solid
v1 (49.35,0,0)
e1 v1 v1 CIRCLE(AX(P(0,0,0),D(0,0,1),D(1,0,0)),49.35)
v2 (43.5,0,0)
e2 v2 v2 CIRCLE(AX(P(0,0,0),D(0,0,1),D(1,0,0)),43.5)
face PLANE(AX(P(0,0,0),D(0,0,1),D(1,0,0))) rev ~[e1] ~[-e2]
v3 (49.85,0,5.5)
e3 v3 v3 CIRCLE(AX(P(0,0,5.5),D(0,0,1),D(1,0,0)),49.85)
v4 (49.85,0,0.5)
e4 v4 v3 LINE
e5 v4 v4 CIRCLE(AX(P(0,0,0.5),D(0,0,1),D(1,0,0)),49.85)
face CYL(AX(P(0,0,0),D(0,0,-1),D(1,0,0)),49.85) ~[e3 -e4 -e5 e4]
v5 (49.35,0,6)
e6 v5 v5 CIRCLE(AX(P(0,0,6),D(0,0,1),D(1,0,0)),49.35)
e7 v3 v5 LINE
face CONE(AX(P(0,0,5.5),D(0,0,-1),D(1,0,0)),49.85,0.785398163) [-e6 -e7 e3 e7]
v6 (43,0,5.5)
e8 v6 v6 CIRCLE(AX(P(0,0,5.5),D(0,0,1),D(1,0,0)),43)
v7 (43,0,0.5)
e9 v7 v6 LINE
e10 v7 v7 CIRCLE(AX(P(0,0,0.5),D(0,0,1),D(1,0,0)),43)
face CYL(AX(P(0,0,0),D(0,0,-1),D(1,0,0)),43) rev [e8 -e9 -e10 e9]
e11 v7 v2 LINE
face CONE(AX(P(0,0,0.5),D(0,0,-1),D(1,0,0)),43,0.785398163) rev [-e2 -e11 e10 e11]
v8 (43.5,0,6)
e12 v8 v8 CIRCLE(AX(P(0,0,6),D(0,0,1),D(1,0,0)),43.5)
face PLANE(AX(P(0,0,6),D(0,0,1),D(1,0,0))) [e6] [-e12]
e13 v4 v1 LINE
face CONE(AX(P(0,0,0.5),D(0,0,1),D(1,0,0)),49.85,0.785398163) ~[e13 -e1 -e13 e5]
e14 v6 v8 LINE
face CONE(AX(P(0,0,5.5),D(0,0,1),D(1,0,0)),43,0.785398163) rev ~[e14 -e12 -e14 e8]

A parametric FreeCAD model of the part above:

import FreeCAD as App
import Part
import Sketcher

V = App.Vector
Q = App.Units.Quantity


def edges_at(feature, points):
    """Names of the edges that pass closest to the given points."""
    edges = feature.Shape.Edges
    near = lambda p: min(range(len(edges)), key=lambda i: edges[i].distToShape(Part.Vertex(*p))[0])
    return sorted({f"Edge{near(p) + 1}" for p in points})

doc = App.newDocument("Part")
params = doc.addObject("Spreadsheet::Sheet", "Params")
for row, (alias, value) in enumerate([
    ("sketch1_diameter", "86 mm"),
    ("sketch1_diameter2", "99.7 mm"),
    ("pad1_length", "6 mm"),
    ("chamfer_size", "0.5 mm"),
], start=1):
    params.set(f"A{row}", alias)
    params.set(f"B{row}", "=" + value)
    params.setAlias(f"B{row}", alias)

body = doc.addObject("PartDesign::Body", "Body")

sketch1 = body.newObject("Sketcher::SketchObject", "Sketch")
sketch1.AttachmentSupport = (doc.getObject("XY_Plane"), [""])
sketch1.MapMode = "FlatFace"
sketch1.addGeometry([
    Part.Circle(V(0, 0, 0), V(0, 0, 1), 50),
    Part.Circle(V(0, 0, 0), V(0, 0, 1), 43),
], False)
sketch1.addConstraint([
    Sketcher.Constraint("Coincident", 0, 3, -1, 1),
    Sketcher.Constraint("Coincident", 1, 3, -1, 1),
    Sketcher.Constraint("Diameter", 1, Q("86 mm")),
    Sketcher.Constraint("Diameter", 0, Q("99.7 mm")),
])
sketch1.setExpression("Constraints[2]", "Params.sketch1_diameter")
sketch1.setExpression("Constraints[3]", "Params.sketch1_diameter2")
pad1 = body.newObject("PartDesign::Pad", "Pad")
pad1.Profile = sketch1
pad1.setExpression("Length", "Params.pad1_length")
doc.recompute()

chamfer = body.newObject("PartDesign::Chamfer", "Chamfer")
chamfer.Base = (pad1, edges_at(pad1, [
    (-43, 0, 6),
    (-43, 0, 0),
    (-49.85, 0, 6),
    (-49.85, 0, 0),
]))
chamfer.setExpression("Size", "Params.chamfer_size")

doc.recompute()
